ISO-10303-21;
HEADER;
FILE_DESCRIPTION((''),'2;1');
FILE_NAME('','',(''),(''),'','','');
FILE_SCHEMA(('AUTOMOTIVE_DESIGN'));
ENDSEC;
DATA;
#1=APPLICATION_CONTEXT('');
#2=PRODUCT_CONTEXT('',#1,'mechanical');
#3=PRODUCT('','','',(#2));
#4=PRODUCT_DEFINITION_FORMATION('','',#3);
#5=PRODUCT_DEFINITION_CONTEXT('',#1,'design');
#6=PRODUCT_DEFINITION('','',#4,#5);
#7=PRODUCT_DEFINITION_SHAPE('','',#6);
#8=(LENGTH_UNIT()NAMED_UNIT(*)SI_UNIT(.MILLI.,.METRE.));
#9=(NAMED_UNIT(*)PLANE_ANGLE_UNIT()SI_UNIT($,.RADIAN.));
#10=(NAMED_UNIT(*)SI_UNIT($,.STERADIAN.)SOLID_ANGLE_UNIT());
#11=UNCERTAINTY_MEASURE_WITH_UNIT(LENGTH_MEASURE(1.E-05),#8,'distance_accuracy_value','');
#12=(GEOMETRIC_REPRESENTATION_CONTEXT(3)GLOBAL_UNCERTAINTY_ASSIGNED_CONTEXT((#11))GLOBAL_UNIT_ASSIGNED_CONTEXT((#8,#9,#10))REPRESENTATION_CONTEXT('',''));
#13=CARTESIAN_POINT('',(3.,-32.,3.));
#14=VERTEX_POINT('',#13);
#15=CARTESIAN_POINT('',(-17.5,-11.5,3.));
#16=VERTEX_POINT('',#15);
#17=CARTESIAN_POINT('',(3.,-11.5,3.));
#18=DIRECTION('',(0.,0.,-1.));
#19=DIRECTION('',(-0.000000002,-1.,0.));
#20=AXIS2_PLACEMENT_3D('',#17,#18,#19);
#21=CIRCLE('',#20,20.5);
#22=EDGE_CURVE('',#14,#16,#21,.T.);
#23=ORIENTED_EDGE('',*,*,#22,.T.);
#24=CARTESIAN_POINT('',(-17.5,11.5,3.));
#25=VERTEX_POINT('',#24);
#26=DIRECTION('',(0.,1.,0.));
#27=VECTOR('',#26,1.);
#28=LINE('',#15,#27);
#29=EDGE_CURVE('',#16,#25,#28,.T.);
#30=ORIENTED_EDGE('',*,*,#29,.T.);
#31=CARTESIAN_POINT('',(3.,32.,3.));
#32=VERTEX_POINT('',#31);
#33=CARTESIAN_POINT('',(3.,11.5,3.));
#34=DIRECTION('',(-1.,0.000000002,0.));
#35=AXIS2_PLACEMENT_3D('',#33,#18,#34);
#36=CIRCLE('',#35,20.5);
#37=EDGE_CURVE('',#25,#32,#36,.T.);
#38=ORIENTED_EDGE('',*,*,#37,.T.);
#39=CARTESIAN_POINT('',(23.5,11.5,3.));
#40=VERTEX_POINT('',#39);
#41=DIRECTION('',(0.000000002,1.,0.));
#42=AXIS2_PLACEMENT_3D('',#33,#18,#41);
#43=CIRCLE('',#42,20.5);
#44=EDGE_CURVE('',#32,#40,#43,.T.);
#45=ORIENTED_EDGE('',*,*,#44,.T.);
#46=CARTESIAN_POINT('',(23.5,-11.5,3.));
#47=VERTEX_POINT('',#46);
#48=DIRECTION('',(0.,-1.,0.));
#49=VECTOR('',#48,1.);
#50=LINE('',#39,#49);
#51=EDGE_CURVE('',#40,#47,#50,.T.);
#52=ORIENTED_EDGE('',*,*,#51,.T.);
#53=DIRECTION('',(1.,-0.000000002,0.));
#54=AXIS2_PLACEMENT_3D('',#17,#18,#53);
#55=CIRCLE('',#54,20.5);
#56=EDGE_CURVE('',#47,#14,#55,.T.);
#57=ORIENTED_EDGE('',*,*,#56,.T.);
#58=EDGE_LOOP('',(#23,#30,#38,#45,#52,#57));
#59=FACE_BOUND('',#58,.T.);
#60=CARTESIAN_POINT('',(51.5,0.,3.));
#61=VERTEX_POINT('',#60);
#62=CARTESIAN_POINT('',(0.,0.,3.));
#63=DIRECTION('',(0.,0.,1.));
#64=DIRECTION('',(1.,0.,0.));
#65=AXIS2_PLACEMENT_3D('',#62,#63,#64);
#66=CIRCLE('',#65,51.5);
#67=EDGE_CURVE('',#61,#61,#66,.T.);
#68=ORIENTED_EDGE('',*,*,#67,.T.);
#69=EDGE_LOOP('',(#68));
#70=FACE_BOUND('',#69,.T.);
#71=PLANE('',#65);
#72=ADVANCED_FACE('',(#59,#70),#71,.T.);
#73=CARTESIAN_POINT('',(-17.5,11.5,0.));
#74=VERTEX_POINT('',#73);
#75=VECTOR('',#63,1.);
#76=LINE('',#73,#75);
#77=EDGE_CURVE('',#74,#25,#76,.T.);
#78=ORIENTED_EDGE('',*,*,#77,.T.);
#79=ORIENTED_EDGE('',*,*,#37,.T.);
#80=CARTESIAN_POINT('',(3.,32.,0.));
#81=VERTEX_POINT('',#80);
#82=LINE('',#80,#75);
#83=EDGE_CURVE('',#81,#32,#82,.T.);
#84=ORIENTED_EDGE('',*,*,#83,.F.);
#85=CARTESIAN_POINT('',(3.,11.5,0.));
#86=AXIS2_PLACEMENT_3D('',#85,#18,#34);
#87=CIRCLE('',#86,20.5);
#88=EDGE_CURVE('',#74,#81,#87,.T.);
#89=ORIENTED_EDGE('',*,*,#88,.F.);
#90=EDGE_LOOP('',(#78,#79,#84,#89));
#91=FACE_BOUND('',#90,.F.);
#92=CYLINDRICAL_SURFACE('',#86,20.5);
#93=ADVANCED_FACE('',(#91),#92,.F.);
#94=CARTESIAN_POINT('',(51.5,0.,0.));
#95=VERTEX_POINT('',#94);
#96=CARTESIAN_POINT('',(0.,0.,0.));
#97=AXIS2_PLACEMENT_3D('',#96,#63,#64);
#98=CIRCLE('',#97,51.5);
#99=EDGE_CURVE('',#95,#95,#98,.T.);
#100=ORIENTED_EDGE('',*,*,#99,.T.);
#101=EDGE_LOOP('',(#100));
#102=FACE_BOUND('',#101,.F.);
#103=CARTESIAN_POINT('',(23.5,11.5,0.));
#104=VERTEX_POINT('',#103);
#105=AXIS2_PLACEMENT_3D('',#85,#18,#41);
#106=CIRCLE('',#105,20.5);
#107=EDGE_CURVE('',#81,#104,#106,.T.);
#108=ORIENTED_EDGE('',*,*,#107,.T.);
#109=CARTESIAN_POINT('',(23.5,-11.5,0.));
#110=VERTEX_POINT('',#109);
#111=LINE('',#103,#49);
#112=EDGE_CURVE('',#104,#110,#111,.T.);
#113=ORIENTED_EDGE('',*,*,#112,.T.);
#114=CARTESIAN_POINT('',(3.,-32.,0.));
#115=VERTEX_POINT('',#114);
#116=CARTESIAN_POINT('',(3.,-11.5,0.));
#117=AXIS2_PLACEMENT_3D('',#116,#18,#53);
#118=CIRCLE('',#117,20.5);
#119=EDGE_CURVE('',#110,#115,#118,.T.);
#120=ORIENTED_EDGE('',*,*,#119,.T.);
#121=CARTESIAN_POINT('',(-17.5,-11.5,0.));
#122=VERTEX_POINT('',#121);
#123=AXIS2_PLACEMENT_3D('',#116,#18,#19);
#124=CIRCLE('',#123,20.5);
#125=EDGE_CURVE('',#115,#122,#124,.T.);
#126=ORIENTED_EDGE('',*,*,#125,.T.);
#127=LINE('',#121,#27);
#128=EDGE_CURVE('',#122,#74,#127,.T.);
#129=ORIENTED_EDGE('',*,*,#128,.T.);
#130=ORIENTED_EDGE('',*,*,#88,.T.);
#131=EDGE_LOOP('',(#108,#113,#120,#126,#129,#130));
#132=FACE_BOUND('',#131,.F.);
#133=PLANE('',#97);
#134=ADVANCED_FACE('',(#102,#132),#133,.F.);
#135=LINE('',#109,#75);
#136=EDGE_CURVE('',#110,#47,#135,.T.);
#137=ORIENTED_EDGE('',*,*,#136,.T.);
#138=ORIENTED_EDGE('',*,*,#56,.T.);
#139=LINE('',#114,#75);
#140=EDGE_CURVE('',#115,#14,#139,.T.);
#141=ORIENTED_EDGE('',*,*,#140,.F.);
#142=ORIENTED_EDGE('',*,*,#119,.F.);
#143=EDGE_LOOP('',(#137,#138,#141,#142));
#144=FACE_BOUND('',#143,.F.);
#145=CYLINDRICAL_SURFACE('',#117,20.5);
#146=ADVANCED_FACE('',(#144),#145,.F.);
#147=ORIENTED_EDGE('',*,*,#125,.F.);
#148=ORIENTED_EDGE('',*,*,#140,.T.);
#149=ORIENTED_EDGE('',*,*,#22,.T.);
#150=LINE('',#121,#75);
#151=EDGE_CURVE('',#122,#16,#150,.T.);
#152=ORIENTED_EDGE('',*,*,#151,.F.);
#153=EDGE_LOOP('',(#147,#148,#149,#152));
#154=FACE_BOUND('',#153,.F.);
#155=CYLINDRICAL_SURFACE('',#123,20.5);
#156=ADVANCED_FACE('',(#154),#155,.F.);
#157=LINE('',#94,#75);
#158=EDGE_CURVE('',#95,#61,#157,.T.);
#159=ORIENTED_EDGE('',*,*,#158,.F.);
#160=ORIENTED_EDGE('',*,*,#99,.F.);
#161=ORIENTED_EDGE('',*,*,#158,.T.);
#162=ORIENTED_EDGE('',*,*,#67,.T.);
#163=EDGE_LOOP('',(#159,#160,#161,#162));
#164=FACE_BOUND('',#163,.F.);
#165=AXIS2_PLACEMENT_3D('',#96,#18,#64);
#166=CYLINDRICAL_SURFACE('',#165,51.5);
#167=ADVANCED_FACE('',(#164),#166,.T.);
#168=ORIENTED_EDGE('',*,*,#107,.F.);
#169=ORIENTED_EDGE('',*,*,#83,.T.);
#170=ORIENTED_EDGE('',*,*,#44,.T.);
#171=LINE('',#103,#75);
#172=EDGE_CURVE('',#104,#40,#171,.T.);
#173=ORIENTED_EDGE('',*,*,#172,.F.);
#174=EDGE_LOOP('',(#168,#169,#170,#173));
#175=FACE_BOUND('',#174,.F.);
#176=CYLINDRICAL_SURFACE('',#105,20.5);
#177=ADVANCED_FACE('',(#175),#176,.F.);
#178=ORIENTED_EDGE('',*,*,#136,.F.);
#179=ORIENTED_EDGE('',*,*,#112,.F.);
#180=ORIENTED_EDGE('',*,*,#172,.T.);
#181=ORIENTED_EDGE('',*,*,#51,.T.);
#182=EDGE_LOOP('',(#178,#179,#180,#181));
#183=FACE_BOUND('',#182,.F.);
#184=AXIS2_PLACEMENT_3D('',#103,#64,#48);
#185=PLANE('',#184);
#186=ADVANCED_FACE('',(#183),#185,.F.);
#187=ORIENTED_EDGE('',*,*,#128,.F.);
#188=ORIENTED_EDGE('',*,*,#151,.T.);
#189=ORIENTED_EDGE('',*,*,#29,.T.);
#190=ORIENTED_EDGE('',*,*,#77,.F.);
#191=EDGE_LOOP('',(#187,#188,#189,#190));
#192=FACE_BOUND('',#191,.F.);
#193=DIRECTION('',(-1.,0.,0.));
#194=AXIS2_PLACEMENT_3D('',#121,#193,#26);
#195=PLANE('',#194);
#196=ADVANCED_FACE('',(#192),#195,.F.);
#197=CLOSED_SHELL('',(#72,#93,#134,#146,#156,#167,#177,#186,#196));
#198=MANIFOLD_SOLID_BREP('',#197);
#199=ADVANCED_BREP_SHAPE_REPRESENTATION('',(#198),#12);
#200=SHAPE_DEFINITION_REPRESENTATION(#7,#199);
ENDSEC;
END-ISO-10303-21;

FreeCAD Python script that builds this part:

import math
import FreeCAD as App
import Part
import Sketcher

V = App.Vector
Q = App.Units.Quantity

doc = App.newDocument("Part")
params = doc.addObject("Spreadsheet::Sheet", "Params")
for row, (alias, value) in enumerate([
    ("sketch1_diameter", "103 mm"),
    ("sketch1_radius", "20.5 mm"),
    ("sketch1_height", "23 mm"),
    ("pad1_length", "3 mm"),
], start=1):
    params.set(f"A{row}", alias)
    params.set(f"B{row}", "=" + value)
    params.setAlias(f"B{row}", alias)

body = doc.addObject("PartDesign::Body", "Body")

sketch1 = body.newObject("Sketcher::SketchObject", "Sketch")
sketch1.AttachmentSupport = (doc.getObject("XY_Plane"), [""])
sketch1.MapMode = "FlatFace"
sketch1.addGeometry(Part.Circle(V(0, 0, 0), V(0, 0, 1), 52), False)
sketch1.addGeometry(Part.ArcOfCircle(Part.Circle(V(3, 11, 0), V(0, 0, 1), 21), math.radians(0), math.radians(90)), False)
sketch1.addGeometry(Part.LineSegment(V(24, 12, 0), V(24, -12, 0)), False)
sketch1.addGeometry(Part.ArcOfCircle(Part.Circle(V(3, -11, 0), V(0, 0, 1), 21), math.radians(-90), math.radians(0)), False)
sketch1.addGeometry(Part.ArcOfCircle(Part.Circle(V(3, -11, 0), V(0, 0, 1), 21), math.radians(-180), math.radians(-90)), False)
sketch1.addGeometry(Part.LineSegment(V(-18, -12, 0), V(-18, 12, 0)), False)
sketch1.addGeometry(Part.ArcOfCircle(Part.Circle(V(3, 11, 0), V(0, 0, 1), 21), math.radians(90), math.radians(180)), False)
sketch1.addConstraint(Sketcher.Constraint("Tangent", 1, 1, 2, 1))
sketch1.addConstraint(Sketcher.Constraint("Tangent", 2, 2, 3, 2))
sketch1.addConstraint(Sketcher.Constraint("Tangent", 3, 1, 4, 2))
sketch1.addConstraint(Sketcher.Constraint("Tangent", 4, 1, 5, 1))
sketch1.addConstraint(Sketcher.Constraint("Tangent", 5, 2, 6, 2))
sketch1.addConstraint(Sketcher.Constraint("Tangent", 6, 1, 1, 2))
sketch1.addConstraint(Sketcher.Constraint("Vertical", 2))
sketch1.addConstraint(Sketcher.Constraint("Vertical", 5))
sketch1.addConstraint(Sketcher.Constraint("Coincident", 0, 3, -1, 1))
sketch1.addConstraint(Sketcher.Constraint("Equal", 1, 3))
sketch1.addConstraint(Sketcher.Constraint("Equal", 3, 4))
sketch1.addConstraint(Sketcher.Constraint("Symmetric", 3, 1, 6, 1, -1))
sketch1.addConstraint(Sketcher.Constraint("Vertical", 6, 3, 3, 1))
sketch1.addConstraint(Sketcher.Constraint("Diameter", 0, Q("103 mm")))
sketch1.addConstraint(Sketcher.Constraint("Radius", 1, Q("20.5 mm")))
sketch1.addConstraint(Sketcher.Constraint("DistanceY", 2, 2, 2, 1, Q("23 mm")))
sketch1.addConstraint(Sketcher.Constraint("DistanceX", -1, 1, 1, 3, Q("3 mm")))
sketch1.setExpression("Constraints[13]", "Params.sketch1_diameter")
sketch1.setExpression("Constraints[14]", "Params.sketch1_radius")
sketch1.setExpression("Constraints[15]", "Params.sketch1_height")
pad1 = body.newObject("PartDesign::Pad", "Pad")
pad1.Profile = sketch1
pad1.setExpression("Length", "Params.pad1_length")

doc.recompute()
